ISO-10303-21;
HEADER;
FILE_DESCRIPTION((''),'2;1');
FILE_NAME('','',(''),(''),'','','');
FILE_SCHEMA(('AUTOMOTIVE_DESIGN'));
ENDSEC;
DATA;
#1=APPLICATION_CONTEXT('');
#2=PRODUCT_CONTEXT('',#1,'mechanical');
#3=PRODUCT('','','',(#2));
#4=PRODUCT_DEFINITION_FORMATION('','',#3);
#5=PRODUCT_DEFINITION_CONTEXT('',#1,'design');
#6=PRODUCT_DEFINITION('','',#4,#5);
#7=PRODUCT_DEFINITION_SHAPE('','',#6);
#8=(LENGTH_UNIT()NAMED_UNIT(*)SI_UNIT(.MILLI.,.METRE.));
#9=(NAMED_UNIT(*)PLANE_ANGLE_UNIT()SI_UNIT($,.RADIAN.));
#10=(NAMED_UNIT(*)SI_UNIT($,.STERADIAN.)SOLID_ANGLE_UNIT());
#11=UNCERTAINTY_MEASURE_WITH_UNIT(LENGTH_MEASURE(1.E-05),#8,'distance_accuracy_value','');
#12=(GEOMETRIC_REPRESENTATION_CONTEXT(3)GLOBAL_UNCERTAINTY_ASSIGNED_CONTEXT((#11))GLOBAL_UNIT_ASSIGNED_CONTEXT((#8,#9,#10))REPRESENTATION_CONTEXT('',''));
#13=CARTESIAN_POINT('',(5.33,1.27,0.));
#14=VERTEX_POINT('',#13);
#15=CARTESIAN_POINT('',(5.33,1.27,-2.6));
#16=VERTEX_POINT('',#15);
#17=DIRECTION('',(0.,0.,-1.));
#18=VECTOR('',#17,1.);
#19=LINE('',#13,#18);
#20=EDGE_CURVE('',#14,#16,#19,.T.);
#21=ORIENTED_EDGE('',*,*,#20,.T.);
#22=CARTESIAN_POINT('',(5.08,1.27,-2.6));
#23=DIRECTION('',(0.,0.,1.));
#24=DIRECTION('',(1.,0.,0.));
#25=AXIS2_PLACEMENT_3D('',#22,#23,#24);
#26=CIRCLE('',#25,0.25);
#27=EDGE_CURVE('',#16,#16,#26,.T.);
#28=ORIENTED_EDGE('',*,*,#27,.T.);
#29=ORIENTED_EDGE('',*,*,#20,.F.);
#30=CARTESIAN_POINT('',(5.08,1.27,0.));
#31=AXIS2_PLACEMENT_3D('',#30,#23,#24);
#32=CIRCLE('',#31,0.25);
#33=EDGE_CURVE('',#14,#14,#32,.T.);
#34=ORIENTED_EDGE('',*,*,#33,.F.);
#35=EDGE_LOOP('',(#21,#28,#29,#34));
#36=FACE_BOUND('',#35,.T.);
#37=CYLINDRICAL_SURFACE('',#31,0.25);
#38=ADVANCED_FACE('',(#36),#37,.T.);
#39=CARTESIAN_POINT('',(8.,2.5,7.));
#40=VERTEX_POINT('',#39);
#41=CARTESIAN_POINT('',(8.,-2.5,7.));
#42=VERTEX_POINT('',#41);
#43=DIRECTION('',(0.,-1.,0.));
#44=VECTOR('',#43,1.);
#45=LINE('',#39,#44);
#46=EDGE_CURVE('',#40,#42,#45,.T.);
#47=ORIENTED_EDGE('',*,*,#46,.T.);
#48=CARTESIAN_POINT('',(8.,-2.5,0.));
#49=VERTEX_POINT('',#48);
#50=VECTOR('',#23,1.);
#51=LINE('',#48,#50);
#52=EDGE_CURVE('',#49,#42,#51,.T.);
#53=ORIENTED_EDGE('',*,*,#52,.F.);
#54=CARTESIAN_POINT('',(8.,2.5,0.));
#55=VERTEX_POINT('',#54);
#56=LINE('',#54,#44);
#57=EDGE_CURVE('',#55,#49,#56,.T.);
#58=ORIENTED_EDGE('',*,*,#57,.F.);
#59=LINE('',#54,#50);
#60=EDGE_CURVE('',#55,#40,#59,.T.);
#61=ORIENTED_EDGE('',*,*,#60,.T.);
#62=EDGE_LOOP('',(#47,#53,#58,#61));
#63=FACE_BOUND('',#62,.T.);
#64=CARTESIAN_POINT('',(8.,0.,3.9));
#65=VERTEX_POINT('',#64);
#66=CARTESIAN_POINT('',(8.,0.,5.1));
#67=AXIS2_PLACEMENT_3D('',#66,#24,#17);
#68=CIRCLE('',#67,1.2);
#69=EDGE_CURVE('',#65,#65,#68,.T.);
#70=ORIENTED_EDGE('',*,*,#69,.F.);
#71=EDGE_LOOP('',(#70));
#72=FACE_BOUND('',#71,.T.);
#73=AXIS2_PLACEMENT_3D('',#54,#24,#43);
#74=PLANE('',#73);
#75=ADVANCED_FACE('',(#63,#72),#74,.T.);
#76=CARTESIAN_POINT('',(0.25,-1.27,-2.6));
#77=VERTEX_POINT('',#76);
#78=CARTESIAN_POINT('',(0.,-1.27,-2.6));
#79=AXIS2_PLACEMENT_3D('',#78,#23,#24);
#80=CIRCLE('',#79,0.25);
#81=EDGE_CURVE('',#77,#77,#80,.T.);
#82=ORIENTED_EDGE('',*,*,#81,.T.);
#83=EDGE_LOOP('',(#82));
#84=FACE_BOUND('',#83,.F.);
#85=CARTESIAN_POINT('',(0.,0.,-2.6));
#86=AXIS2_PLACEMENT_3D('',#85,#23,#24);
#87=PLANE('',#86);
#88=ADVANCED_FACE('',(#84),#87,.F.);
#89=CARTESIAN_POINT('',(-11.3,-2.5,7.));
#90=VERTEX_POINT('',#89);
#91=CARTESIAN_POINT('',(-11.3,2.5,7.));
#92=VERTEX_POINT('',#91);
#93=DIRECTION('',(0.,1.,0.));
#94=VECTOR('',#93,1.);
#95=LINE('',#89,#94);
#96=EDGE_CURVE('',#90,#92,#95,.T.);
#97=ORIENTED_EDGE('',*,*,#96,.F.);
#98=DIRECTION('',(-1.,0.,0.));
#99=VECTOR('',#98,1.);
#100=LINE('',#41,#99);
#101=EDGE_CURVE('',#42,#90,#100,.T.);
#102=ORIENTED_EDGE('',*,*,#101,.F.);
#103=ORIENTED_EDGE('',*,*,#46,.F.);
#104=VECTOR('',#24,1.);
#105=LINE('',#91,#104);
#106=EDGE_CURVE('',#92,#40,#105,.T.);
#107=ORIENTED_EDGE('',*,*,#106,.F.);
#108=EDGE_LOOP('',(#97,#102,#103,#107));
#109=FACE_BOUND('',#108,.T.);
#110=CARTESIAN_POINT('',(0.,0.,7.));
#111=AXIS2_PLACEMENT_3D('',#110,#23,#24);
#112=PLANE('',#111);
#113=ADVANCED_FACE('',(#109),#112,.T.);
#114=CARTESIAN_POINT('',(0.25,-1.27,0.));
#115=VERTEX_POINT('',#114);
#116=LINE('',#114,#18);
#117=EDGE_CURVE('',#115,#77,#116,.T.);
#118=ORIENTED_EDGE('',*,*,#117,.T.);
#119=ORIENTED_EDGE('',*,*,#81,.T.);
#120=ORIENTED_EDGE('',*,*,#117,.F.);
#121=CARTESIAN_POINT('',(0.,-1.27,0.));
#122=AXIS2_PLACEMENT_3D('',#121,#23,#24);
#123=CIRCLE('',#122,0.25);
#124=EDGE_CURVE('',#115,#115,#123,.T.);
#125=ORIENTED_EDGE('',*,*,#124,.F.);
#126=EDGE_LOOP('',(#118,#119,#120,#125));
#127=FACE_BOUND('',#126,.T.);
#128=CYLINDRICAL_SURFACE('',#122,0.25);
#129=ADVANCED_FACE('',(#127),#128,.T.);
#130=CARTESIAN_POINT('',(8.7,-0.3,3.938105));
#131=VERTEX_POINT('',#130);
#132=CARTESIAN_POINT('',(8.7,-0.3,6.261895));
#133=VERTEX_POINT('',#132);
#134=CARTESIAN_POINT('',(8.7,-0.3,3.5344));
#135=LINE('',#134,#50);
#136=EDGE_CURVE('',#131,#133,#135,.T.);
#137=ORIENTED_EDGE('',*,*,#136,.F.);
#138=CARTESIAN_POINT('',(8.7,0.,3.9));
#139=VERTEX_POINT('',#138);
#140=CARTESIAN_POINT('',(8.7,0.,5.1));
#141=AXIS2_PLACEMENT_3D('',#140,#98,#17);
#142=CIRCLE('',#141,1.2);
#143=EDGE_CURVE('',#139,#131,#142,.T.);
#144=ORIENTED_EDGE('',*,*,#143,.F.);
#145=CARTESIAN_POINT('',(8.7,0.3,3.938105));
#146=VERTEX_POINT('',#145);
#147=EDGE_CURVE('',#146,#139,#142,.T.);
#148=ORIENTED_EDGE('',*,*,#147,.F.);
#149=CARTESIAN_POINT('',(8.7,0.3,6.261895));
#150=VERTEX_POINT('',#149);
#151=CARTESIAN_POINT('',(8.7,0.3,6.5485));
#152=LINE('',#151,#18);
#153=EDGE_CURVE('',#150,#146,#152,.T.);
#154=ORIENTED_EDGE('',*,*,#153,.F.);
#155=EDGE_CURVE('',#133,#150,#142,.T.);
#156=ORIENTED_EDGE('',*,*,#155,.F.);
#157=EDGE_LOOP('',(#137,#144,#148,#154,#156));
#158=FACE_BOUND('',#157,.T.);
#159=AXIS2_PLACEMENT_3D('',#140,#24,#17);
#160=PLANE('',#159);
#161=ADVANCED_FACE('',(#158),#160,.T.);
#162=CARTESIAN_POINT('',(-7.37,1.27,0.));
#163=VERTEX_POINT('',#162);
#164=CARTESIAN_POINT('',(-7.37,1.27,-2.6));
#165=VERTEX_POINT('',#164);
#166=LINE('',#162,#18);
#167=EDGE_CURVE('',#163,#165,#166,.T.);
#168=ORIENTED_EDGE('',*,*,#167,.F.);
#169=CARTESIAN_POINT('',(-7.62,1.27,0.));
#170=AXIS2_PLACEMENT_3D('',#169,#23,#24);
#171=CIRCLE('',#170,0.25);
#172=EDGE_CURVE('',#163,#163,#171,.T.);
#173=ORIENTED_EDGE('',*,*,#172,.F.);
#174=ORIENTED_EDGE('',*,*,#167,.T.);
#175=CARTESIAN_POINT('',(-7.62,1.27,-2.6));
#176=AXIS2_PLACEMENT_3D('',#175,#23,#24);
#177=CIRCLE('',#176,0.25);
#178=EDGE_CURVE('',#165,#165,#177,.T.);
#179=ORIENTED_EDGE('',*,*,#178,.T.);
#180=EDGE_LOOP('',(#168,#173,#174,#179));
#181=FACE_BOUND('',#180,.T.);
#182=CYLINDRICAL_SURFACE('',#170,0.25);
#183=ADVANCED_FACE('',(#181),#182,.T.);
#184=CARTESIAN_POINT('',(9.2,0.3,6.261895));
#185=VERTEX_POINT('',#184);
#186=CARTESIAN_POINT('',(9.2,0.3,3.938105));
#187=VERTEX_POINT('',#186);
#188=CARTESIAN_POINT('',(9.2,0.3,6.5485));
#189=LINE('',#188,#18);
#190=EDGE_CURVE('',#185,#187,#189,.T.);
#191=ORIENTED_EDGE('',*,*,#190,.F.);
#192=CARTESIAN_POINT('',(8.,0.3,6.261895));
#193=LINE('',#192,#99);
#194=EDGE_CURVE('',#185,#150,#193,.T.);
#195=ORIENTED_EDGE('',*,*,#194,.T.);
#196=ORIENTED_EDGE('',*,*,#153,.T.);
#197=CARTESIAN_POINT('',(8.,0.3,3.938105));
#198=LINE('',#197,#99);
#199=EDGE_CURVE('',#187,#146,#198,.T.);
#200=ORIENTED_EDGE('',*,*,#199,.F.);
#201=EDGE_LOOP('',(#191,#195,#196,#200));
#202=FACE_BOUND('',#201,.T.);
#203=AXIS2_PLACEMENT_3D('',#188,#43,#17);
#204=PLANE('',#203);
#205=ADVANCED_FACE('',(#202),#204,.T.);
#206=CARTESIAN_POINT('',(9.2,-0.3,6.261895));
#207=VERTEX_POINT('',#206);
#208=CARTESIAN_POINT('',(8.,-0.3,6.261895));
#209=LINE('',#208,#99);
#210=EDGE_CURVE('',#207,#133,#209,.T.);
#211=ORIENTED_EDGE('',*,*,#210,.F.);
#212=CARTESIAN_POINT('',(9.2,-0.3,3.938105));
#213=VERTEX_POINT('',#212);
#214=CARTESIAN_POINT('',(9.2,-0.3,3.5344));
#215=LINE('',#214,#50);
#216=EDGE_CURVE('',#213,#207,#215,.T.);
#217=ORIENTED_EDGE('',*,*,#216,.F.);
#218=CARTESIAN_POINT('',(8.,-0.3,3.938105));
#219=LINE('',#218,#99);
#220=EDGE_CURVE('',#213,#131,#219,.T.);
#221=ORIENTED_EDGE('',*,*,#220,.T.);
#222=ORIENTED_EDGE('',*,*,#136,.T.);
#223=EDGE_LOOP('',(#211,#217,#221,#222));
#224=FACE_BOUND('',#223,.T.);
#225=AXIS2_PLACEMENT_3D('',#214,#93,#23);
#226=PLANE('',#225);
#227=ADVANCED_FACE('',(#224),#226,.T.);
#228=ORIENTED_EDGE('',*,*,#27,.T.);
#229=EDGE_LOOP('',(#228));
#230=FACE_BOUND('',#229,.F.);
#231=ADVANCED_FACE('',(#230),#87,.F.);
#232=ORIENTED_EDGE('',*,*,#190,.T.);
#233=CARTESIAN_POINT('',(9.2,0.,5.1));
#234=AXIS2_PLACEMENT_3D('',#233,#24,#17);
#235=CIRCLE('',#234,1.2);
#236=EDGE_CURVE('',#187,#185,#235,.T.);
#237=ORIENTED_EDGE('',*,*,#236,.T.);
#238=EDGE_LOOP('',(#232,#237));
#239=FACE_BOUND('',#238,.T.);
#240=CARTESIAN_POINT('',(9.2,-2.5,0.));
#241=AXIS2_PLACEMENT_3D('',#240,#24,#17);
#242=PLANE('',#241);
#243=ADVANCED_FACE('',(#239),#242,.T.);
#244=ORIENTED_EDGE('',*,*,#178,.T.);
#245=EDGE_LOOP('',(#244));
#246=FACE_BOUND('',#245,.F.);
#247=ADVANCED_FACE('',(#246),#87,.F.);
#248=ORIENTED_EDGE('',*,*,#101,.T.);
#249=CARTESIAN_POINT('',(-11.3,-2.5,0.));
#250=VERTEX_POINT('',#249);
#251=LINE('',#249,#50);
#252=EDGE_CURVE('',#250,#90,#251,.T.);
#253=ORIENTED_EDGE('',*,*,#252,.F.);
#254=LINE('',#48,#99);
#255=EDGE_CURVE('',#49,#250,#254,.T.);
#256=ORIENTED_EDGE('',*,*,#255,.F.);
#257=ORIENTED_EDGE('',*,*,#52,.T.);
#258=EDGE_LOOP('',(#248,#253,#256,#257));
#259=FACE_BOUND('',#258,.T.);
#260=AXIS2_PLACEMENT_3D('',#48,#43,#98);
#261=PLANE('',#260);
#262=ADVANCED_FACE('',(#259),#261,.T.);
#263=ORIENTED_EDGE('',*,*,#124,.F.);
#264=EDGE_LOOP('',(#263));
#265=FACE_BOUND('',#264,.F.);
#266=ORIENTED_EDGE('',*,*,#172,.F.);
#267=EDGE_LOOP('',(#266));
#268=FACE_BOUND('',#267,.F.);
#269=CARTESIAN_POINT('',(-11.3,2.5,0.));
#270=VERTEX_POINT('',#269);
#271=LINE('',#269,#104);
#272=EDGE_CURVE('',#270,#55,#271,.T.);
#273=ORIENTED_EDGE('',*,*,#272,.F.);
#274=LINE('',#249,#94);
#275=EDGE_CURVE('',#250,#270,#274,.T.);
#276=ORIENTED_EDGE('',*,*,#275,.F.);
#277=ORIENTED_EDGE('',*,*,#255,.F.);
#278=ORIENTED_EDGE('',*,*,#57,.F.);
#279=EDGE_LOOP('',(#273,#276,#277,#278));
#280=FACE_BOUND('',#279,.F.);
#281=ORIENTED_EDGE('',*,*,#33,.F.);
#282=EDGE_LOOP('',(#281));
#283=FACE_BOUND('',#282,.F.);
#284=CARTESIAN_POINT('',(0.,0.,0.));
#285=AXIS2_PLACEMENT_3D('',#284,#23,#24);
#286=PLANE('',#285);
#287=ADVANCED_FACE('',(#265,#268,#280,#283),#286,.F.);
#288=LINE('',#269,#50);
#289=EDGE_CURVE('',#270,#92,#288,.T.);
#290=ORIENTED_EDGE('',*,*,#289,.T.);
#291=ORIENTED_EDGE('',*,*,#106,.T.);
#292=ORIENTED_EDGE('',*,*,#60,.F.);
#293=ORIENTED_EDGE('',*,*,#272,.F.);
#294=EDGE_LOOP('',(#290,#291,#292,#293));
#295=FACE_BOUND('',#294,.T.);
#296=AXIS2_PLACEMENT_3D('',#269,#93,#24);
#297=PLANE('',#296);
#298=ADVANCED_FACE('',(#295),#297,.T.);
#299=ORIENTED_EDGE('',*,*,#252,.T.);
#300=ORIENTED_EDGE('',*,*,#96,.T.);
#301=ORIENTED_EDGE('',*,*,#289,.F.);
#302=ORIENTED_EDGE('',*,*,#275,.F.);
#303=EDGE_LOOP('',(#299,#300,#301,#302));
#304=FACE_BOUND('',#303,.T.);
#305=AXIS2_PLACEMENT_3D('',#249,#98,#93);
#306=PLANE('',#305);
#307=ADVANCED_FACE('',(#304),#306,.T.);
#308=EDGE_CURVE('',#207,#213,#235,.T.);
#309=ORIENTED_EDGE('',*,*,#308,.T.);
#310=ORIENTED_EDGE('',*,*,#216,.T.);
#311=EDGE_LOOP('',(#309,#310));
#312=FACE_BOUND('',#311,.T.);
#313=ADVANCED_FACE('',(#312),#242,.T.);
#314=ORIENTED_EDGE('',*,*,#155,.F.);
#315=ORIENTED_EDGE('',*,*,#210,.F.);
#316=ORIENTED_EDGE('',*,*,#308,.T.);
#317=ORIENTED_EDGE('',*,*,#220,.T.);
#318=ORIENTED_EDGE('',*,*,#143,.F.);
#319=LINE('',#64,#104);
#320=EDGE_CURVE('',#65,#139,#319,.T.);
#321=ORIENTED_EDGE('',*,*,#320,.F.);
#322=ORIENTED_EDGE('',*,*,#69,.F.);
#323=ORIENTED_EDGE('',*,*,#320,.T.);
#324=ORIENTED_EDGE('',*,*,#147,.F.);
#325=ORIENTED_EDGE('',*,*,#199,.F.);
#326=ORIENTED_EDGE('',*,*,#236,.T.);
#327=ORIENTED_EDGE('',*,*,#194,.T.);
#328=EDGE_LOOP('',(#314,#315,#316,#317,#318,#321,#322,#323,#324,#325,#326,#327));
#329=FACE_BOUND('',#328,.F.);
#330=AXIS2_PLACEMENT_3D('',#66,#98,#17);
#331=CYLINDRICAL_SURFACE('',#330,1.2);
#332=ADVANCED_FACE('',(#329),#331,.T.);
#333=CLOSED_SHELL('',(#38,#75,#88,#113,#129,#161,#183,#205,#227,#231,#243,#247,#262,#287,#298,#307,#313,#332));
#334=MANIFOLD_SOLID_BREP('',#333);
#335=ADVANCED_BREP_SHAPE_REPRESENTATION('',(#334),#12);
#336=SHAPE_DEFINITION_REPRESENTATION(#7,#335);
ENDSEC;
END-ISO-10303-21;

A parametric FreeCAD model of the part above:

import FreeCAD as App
import Part
import Sketcher
from FreeCAD import Vector
Q = App.Units.Quantity

doc = App.newDocument("Part")
params = doc.addObject("Spreadsheet::Sheet", "Params")
for row, (alias, value) in enumerate([
    ("sketch1_diameter", "0.5 mm"),
    ("pad1_length", "2.6 mm"),
    ("sketch2_height", "5 mm"),
    ("sketch2_width", "19.3 mm"),
    ("pad2_length", "7 mm"),
    ("sketch3_diameter", "2.4 mm"),
    ("pad3_length", "1.2 mm"),
    ("sketch4_width", "0.6 mm"),
    ("pocket1_length", "0.5 mm"),
], start=1):
    params.set(f"A{row}", alias)
    params.set(f"B{row}", "=" + value)
    params.setAlias(f"B{row}", alias)

body = doc.addObject("PartDesign::Body", "Body")
body.AllowCompound = True

sketch1 = body.newObject("Sketcher::SketchObject", "Sketch")
sketch1.AttachmentSupport = (doc.getObject("XY_Plane"), [""])
sketch1.MapMode = "FlatFace"
sketch1.addGeometry([
    Part.Circle(Vector(0, -1.27, 0), Vector(0, 0, 1), 0.25),
    Part.Circle(Vector(5.08, 1.27, 0), Vector(0, 0, 1), 0.25),
    Part.Circle(Vector(-7.62, 1.27, 0), Vector(0, 0, 1), 0.25),
], False)
sketch1.addConstraint([
    Sketcher.Constraint("Equal", 0, 1),
    Sketcher.Constraint("Equal", 1, 2),
    Sketcher.Constraint("PointOnObject", 0, 3, -2),
    Sketcher.Constraint("Horizontal", 1, 3, 2, 3),
    Sketcher.Constraint("Diameter", 0, Q("0.5 mm")),
    Sketcher.Constraint("DistanceX", 2, 3, 1, 3, Q("12.7 mm")),
    Sketcher.Constraint("DistanceY", 0, 3, -1, 1, Q("1.27 mm")),
    Sketcher.Constraint("DistanceX", -1, 1, 1, 3, Q("5.08 mm")),
    Sketcher.Constraint("DistanceY", -1, 1, 1, 3, Q("1.27 mm")),
])
sketch1.setExpression("Constraints[4]", "Params.sketch1_diameter")
pad1 = body.newObject("PartDesign::Pad", "Pad")
pad1.Profile = sketch1
pad1.setExpression("Length", "Params.pad1_length")
pad1.Reversed = True

sketch2 = body.newObject("Sketcher::SketchObject", "Sketch001")
sketch2.AttachmentSupport = (doc.getObject("XY_Plane"), [""])
sketch2.MapMode = "FlatFace"
sketch2.addGeometry([
    Part.LineSegment(Vector(8, 2, 0), Vector(-11, 2, 0)),
    Part.LineSegment(Vector(-11, 2, 0), Vector(-11, -2, 0)),
    Part.LineSegment(Vector(-11, -2, 0), Vector(8, -2, 0)),
    Part.LineSegment(Vector(8, -2, 0), Vector(8, 2, 0)),
], False)
sketch2.addConstraint([
    Sketcher.Constraint("Coincident", 0, 2, 1, 1),
    Sketcher.Constraint("Coincident", 1, 2, 2, 1),
    Sketcher.Constraint("Coincident", 2, 2, 3, 1),
    Sketcher.Constraint("Coincident", 3, 2, 0, 1),
    Sketcher.Constraint("Horizontal", 0),
    Sketcher.Constraint("Vertical", 1),
    Sketcher.Constraint("Horizontal", 2),
    Sketcher.Constraint("Vertical", 3),
    Sketcher.Constraint("DistanceY", 1, 2, 1, 1, Q("5 mm")),
    Sketcher.Constraint("DistanceX", 0, 2, 0, 1, Q("19.3 mm")),
    Sketcher.Constraint("DistanceX", -1, 1, 2, 2, Q("8 mm")),
    Sketcher.Constraint("DistanceY", -1, 1, 0, 2, Q("2.5 mm")),
])
sketch2.setExpression("Constraints[8]", "Params.sketch2_height")
sketch2.setExpression("Constraints[9]", "Params.sketch2_width")
pad2 = body.newObject("PartDesign::Pad", "Pad001")
pad2.Profile = sketch2
pad2.setExpression("Length", "Params.pad2_length")

sketch3 = body.newObject("Sketcher::SketchObject", "Sketch002")
sketch3.AttachmentSupport = (doc.getObject("YZ_Plane"), [""])
sketch3.MapMode = "FlatFace"
sketch3.AttachmentOffset = App.Placement(Vector(0, 0, 8), App.Rotation())
sketch3.addGeometry(Part.Circle(Vector(0, 5.1, 0), Vector(0, 0, 1), 1.2), False)
sketch3.addConstraint([
    Sketcher.Constraint("PointOnObject", 0, 3, -2),
    Sketcher.Constraint("Diameter", 0, Q("2.4 mm")),
    Sketcher.Constraint("DistanceY", -1, 1, 0, 3, Q("5.1 mm")),
])
sketch3.setExpression("Constraints[1]", "Params.sketch3_diameter")
pad3 = body.newObject("PartDesign::Pad", "Pad002")
pad3.Profile = sketch3
pad3.setExpression("Length", "Params.pad3_length")

sketch4 = body.newObject("Sketcher::SketchObject", "Sketch003")
sketch4.AttachmentSupport = (doc.getObject("YZ_Plane"), [""])
sketch4.MapMode = "FlatFace"
sketch4.AttachmentOffset = App.Placement(Vector(0, 0, 9.2), App.Rotation())
sketch4.addGeometry([
    Part.LineSegment(Vector(0.3, 3.5, 0), Vector(0.3, 6.5, 0)),
    Part.LineSegment(Vector(0.3, 6.5, 0), Vector(-0.3, 6.5, 0)),
    Part.LineSegment(Vector(-0.3, 6.5, 0), Vector(-0.3, 3.5, 0)),
    Part.LineSegment(Vector(-0.3, 3.5, 0), Vector(0.3, 3.5, 0)),
], False)
sketch4.addConstraint([
    Sketcher.Constraint("Coincident", 0, 2, 1, 1),
    Sketcher.Constraint("Coincident", 1, 2, 2, 1),
    Sketcher.Constraint("Coincident", 2, 2, 3, 1),
    Sketcher.Constraint("Coincident", 3, 2, 0, 1),
    Sketcher.Constraint("Vertical", 0),
    Sketcher.Constraint("Horizontal", 1),
    Sketcher.Constraint("Vertical", 2),
    Sketcher.Constraint("Horizontal", 3),
    Sketcher.Constraint("DistanceX", 1, 2, 1, 1, Q("0.6 mm")),
    Sketcher.Constraint("DistanceX", -1, 1, 0, 2, Q("0.3 mm")),
    Sketcher.Constraint("DistanceY", 0, 1, 0, 2, Q("3.014 mm")),
    Sketcher.Constraint("DistanceY", -1, 1, 0, 2, Q("6.5485 mm")),
])
sketch4.setExpression("Constraints[8]", "Params.sketch4_width")
pocket1 = body.newObject("PartDesign::Pocket", "Pocket")
pocket1.Profile = sketch4
pocket1.setExpression("Length", "Params.pocket1_length")

doc.recompute()
